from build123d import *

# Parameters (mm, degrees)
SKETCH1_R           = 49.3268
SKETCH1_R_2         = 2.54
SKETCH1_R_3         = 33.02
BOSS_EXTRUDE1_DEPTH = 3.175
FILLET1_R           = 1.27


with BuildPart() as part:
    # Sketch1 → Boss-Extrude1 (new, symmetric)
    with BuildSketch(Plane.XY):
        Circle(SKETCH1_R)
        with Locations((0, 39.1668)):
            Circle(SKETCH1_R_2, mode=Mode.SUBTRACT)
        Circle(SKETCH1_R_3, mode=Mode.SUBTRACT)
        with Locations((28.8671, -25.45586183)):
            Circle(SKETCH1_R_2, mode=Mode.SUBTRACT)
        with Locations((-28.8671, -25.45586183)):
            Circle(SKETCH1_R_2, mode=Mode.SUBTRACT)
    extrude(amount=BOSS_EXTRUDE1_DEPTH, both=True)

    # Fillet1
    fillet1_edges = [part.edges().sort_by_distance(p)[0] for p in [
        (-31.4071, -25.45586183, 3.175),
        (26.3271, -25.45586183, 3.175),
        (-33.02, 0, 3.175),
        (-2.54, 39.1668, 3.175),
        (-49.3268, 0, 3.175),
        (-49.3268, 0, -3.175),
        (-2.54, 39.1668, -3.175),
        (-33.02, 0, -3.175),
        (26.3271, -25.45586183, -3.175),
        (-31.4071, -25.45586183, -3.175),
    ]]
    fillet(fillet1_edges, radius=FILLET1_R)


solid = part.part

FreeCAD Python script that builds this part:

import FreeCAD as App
import Part
import Sketcher
Q = App.Units.Quantity


def edges_at(feature, points):
    """Names of the edges that pass closest to the given points."""
    edges = feature.Shape.Edges
    near = lambda p: min(range(len(edges)), key=lambda i: edges[i].distToShape(Part.Vertex(*p))[0])
    return sorted({f"Edge{near(p) + 1}" for p in points})

doc = App.newDocument("Part")
body = doc.addObject("PartDesign::Body", "Body")

# Sketch on XY plane
sketch1 = body.newObject("Sketcher::SketchObject", "Sketch")
sketch1.AttachmentSupport = (doc.getObject("XY_Plane"), [""])
sketch1.MapMode = "FlatFace"
sketch1.addGeometry(Part.Circle(App.Vector(0, 0, 0), App.Vector(0, 0, 1), 49.3), False)
sketch1.addGeometry(Part.Circle(App.Vector(-28.9, -25.5, 0), App.Vector(0, 0, 1), 2.5), False)
sketch1.addGeometry(Part.Circle(App.Vector(28.9, -25.5, 0), App.Vector(0, 0, 1), 2.5), False)
sketch1.addGeometry(Part.Circle(App.Vector(0, 0, 0), App.Vector(0, 0, 1), 33), False)
sketch1.addGeometry(Part.Circle(App.Vector(0, 39.2, 0), App.Vector(0, 0, 1), 2.5), False)
sketch1.addConstraint(Sketcher.Constraint("Coincident", 0, 3, -1, 1))
sketch1.addConstraint(Sketcher.Constraint("Coincident", 3, 3, -1, 1))
sketch1.addConstraint(Sketcher.Constraint("Equal", 1, 2))
sketch1.addConstraint(Sketcher.Constraint("Equal", 2, 4))
sketch1.addConstraint(Sketcher.Constraint("Symmetric", 1, 3, 2, 3, -2))
sketch1.addConstraint(Sketcher.Constraint("PointOnObject", 4, 3, -2))
sketch1.addConstraint(Sketcher.Constraint("Diameter", 1, Q("0.2 in")))
sketch1.addConstraint(Sketcher.Constraint("Diameter", 3, Q("2.6 in")))
sketch1.addConstraint(Sketcher.Constraint("Diameter", 0, Q("3.884 in")))
sketch1.addConstraint(Sketcher.Constraint("DistanceY", -1, 1, 4, 3, Q("1.542 in")))
sketch1.addConstraint(Sketcher.Constraint("DistanceX", 1, 3, 2, 3, Q("2.273 in")))
sketch1.addConstraint(Sketcher.Constraint("DistanceY", 1, 3, -1, 1, Q("25.455862 mm")))
pad1 = body.newObject("PartDesign::Pad", "Pad")
pad1.Profile = sketch1
pad1.Length = Q("0.25 in")
pad1.Midplane = True
doc.recompute()

fillet = body.newObject("PartDesign::Fillet", "Fillet")
fillet.Base = (pad1, edges_at(pad1, [
    (-31.407, -25.456, 3.175),
    (26.327, -25.456, 3.175),
    (-33.02, 0, 3.175),
    (-2.54, 39.167, 3.175),
    (-49.327, 0, 3.175),
    (-49.327, 0, -3.175),
    (-2.54, 39.167, -3.175),
    (-33.02, 0, -3.175),
    (26.327, -25.456, -3.175),
    (-31.407, -25.456, -3.175),
]))
fillet.Radius = Q("0.05 in")

doc.recompute()
